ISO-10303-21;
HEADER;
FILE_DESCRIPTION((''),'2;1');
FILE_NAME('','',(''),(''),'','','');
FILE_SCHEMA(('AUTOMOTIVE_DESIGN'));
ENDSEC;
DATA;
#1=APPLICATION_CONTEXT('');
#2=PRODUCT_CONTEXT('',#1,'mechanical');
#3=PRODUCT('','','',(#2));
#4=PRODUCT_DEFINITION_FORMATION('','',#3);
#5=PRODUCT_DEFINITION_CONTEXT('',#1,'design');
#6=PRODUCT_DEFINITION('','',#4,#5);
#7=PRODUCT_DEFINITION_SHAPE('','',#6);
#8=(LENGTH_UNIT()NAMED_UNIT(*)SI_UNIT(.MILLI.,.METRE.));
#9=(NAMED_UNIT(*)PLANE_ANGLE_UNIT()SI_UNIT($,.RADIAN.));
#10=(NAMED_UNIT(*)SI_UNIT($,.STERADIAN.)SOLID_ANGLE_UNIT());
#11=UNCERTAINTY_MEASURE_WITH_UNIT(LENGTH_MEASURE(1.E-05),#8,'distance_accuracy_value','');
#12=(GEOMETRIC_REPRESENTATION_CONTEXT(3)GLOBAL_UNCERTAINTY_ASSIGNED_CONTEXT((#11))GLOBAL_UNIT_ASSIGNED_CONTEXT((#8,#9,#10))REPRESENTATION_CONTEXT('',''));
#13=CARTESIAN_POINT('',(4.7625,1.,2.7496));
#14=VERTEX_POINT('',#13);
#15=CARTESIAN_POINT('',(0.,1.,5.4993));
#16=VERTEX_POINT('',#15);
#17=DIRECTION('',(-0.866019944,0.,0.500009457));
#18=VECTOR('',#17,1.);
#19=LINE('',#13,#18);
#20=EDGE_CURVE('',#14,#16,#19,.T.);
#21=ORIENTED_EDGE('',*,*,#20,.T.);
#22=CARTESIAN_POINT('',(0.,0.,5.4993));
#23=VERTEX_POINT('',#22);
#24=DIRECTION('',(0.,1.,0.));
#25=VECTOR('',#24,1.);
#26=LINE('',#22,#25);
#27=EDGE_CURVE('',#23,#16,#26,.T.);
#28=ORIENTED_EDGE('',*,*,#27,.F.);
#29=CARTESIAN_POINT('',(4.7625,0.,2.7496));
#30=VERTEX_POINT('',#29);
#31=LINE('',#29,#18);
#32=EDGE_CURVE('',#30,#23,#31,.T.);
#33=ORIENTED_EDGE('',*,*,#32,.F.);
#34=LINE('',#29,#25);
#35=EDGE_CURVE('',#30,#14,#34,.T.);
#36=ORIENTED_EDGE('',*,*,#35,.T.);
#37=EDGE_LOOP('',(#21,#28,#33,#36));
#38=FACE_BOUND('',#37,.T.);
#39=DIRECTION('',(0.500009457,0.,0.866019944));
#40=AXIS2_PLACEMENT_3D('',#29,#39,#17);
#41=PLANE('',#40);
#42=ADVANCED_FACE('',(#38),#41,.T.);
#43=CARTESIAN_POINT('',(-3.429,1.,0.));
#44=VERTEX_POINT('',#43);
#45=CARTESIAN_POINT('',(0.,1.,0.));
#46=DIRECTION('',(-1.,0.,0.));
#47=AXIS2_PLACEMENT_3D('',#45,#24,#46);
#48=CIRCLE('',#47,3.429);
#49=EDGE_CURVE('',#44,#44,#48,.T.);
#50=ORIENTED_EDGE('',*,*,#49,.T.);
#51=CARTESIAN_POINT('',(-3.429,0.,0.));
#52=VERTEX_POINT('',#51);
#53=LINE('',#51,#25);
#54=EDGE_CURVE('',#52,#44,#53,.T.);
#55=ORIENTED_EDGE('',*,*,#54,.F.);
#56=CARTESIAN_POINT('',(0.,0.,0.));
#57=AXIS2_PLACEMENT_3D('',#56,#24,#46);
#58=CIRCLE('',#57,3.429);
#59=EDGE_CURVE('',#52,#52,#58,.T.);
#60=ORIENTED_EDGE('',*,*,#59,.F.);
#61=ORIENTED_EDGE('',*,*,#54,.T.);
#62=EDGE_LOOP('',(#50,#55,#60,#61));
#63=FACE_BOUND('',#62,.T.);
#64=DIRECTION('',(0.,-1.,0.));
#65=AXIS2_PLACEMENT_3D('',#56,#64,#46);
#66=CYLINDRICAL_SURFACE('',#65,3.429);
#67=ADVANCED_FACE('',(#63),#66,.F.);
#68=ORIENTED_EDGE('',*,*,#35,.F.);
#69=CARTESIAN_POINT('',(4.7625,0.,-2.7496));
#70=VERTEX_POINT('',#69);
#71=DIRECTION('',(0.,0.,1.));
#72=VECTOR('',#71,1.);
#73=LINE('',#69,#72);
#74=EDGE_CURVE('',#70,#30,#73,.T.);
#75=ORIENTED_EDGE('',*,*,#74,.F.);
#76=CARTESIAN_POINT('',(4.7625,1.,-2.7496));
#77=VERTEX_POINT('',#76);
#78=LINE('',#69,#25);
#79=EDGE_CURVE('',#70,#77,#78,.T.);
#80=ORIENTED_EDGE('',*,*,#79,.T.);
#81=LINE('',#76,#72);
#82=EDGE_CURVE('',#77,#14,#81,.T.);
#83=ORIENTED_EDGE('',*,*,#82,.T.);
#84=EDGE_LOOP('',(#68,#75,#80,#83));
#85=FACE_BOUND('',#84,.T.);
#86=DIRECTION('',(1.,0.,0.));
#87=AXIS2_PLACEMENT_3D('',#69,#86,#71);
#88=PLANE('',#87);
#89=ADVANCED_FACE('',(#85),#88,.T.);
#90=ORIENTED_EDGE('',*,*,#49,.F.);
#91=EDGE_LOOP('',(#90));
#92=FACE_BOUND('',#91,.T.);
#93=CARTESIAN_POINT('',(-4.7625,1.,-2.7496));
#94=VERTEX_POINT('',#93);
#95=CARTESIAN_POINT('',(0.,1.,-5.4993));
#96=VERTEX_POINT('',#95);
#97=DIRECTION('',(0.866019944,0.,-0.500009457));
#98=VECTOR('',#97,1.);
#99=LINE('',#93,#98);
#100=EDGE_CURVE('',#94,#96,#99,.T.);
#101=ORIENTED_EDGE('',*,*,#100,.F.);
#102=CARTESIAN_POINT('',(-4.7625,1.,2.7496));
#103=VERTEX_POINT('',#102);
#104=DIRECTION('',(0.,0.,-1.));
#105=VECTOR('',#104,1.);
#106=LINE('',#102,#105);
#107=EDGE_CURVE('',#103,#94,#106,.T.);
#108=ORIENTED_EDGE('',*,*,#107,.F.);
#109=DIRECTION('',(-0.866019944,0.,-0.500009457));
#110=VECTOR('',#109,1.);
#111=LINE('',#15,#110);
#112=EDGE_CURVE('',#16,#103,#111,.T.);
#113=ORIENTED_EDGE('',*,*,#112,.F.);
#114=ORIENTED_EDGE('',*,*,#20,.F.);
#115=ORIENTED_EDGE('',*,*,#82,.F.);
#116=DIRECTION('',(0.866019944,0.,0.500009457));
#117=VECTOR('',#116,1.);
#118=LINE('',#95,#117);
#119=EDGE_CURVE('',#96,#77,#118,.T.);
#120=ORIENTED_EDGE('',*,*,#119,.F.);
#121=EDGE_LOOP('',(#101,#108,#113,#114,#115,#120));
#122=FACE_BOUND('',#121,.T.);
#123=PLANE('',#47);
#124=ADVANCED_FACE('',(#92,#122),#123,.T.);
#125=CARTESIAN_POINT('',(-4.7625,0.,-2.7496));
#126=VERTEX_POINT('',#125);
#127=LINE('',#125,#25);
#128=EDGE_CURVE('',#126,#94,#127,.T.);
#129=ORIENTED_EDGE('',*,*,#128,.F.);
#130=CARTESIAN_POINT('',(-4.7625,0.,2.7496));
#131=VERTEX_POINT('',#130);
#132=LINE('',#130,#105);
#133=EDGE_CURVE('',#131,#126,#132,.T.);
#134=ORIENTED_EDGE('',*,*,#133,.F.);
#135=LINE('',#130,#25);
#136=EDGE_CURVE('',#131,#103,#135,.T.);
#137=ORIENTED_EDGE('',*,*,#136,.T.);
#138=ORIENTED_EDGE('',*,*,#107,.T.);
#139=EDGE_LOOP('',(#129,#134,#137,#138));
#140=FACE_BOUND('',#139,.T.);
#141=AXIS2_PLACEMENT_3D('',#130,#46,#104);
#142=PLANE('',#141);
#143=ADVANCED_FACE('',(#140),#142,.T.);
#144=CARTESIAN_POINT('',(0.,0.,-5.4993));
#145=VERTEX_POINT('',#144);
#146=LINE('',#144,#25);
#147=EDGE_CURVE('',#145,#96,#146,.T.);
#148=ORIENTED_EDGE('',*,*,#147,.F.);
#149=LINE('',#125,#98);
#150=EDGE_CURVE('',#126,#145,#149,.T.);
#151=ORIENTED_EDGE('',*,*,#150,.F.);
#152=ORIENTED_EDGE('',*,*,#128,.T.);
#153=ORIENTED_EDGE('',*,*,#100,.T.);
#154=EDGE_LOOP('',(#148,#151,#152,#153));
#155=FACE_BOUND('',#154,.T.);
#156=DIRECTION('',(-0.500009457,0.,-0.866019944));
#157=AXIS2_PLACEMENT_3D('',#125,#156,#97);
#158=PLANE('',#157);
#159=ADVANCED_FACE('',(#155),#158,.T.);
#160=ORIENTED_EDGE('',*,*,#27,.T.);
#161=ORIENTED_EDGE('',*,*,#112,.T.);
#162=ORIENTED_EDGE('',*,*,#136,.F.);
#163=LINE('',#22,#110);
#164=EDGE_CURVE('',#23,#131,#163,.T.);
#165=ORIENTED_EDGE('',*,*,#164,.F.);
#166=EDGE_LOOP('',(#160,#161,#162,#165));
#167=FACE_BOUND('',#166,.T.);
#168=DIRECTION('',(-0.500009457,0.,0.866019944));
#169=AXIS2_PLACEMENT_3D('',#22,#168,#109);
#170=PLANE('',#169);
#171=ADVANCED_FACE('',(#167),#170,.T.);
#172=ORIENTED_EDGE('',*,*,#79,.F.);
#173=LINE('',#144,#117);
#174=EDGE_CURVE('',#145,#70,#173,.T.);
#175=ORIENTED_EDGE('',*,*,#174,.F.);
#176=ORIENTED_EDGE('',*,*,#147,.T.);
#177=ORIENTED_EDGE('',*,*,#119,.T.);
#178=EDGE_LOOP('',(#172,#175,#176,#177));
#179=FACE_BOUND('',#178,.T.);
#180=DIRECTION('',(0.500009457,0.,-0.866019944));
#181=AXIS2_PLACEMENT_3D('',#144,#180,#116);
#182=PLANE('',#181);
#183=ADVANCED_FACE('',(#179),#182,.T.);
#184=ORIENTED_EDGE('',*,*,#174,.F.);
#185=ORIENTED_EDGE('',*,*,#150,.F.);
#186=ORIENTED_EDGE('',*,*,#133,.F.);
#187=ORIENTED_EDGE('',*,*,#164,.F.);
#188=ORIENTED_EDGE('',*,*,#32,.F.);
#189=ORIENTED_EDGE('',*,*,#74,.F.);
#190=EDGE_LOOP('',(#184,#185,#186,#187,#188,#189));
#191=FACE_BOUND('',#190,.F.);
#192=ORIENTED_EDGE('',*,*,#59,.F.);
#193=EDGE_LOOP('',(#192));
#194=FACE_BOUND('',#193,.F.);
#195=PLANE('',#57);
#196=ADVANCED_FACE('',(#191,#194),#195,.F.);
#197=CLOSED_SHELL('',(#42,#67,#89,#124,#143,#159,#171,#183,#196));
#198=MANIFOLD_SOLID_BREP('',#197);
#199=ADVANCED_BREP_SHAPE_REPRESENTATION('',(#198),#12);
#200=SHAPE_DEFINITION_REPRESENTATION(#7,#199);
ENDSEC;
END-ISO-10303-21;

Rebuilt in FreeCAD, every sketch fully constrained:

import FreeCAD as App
import Part
import Sketcher
from FreeCAD import Vector
Q = App.Units.Quantity


def add_polygon(sketch, points):
    """Adds a closed chain of lines whose ends are joined by coincident constraints."""
    first, n = sketch.GeometryCount, len(points)
    for a, b in zip(points, points[1:] + points[:1]):
        sketch.addGeometry(Part.LineSegment(App.Vector(*a, 0), App.Vector(*b, 0)), False)
    for i in range(n):
        sketch.addConstraint(Sketcher.Constraint("Coincident", first + i, 2, first + (i + 1) % n, 1))

doc = App.newDocument("Part")
body = doc.addObject("PartDesign::Body", "Body")

# Sketch on XZ plane
sketch1 = doc.addObject("Sketcher::SketchObject", "Sketch")
body.addObject(sketch1)
sketch1.AttachmentSupport = (doc.XZ_Plane, [""])
sketch1.MapMode = "FlatFace"
add_polygon(sketch1, [(0, -5.5), (-4.8, -2.7), (-4.8, 2.7), (0, 5.5), (4.8, 2.7), (4.8, -2.7)])  # lines 0-5
sketch1.addGeometry(Part.Circle(Vector(0, 0, 0), Vector(0, 0, 1), 3.4), False)  # 6
sketch1.addConstraint(Sketcher.Constraint("Vertical", 1))
sketch1.addConstraint(Sketcher.Constraint("Vertical", 4))
sketch1.addConstraint(Sketcher.Constraint("Coincident", 6, 3, -1, 1))
sketch1.addConstraint(Sketcher.Constraint("Symmetric", 0, 2, 3, 2, -1, 1))
sketch1.addConstraint(Sketcher.Constraint("Symmetric", 2, 2, 5, 2, -1, 1))
sketch1.addConstraint(Sketcher.Constraint("PointOnObject", 2, 2, -2))
sketch1.addConstraint(Sketcher.Constraint("Parallel", 2, 5))
sketch1.addConstraint(Sketcher.Constraint("Horizontal", 1, 2, 3, 2))
sketch1.addConstraint(Sketcher.Constraint("Diameter", 6, 6.858))
sketch1.addConstraint(Sketcher.Constraint("Angle", 0, Q("149.9994 deg")))
sketch1.addConstraint(Sketcher.Constraint("DistanceX", 1, 2, 3, 2, 9.525))
sketch1.addConstraint(Sketcher.Constraint("DistanceY", 1, 1, 1, 2, 5.4992))
pad1 = doc.addObject("PartDesign::Pad", "Pad")
body.addObject(pad1)
pad1.Profile = sketch1
pad1.Length = 1
pad1.Reversed = True

doc.recompute()
